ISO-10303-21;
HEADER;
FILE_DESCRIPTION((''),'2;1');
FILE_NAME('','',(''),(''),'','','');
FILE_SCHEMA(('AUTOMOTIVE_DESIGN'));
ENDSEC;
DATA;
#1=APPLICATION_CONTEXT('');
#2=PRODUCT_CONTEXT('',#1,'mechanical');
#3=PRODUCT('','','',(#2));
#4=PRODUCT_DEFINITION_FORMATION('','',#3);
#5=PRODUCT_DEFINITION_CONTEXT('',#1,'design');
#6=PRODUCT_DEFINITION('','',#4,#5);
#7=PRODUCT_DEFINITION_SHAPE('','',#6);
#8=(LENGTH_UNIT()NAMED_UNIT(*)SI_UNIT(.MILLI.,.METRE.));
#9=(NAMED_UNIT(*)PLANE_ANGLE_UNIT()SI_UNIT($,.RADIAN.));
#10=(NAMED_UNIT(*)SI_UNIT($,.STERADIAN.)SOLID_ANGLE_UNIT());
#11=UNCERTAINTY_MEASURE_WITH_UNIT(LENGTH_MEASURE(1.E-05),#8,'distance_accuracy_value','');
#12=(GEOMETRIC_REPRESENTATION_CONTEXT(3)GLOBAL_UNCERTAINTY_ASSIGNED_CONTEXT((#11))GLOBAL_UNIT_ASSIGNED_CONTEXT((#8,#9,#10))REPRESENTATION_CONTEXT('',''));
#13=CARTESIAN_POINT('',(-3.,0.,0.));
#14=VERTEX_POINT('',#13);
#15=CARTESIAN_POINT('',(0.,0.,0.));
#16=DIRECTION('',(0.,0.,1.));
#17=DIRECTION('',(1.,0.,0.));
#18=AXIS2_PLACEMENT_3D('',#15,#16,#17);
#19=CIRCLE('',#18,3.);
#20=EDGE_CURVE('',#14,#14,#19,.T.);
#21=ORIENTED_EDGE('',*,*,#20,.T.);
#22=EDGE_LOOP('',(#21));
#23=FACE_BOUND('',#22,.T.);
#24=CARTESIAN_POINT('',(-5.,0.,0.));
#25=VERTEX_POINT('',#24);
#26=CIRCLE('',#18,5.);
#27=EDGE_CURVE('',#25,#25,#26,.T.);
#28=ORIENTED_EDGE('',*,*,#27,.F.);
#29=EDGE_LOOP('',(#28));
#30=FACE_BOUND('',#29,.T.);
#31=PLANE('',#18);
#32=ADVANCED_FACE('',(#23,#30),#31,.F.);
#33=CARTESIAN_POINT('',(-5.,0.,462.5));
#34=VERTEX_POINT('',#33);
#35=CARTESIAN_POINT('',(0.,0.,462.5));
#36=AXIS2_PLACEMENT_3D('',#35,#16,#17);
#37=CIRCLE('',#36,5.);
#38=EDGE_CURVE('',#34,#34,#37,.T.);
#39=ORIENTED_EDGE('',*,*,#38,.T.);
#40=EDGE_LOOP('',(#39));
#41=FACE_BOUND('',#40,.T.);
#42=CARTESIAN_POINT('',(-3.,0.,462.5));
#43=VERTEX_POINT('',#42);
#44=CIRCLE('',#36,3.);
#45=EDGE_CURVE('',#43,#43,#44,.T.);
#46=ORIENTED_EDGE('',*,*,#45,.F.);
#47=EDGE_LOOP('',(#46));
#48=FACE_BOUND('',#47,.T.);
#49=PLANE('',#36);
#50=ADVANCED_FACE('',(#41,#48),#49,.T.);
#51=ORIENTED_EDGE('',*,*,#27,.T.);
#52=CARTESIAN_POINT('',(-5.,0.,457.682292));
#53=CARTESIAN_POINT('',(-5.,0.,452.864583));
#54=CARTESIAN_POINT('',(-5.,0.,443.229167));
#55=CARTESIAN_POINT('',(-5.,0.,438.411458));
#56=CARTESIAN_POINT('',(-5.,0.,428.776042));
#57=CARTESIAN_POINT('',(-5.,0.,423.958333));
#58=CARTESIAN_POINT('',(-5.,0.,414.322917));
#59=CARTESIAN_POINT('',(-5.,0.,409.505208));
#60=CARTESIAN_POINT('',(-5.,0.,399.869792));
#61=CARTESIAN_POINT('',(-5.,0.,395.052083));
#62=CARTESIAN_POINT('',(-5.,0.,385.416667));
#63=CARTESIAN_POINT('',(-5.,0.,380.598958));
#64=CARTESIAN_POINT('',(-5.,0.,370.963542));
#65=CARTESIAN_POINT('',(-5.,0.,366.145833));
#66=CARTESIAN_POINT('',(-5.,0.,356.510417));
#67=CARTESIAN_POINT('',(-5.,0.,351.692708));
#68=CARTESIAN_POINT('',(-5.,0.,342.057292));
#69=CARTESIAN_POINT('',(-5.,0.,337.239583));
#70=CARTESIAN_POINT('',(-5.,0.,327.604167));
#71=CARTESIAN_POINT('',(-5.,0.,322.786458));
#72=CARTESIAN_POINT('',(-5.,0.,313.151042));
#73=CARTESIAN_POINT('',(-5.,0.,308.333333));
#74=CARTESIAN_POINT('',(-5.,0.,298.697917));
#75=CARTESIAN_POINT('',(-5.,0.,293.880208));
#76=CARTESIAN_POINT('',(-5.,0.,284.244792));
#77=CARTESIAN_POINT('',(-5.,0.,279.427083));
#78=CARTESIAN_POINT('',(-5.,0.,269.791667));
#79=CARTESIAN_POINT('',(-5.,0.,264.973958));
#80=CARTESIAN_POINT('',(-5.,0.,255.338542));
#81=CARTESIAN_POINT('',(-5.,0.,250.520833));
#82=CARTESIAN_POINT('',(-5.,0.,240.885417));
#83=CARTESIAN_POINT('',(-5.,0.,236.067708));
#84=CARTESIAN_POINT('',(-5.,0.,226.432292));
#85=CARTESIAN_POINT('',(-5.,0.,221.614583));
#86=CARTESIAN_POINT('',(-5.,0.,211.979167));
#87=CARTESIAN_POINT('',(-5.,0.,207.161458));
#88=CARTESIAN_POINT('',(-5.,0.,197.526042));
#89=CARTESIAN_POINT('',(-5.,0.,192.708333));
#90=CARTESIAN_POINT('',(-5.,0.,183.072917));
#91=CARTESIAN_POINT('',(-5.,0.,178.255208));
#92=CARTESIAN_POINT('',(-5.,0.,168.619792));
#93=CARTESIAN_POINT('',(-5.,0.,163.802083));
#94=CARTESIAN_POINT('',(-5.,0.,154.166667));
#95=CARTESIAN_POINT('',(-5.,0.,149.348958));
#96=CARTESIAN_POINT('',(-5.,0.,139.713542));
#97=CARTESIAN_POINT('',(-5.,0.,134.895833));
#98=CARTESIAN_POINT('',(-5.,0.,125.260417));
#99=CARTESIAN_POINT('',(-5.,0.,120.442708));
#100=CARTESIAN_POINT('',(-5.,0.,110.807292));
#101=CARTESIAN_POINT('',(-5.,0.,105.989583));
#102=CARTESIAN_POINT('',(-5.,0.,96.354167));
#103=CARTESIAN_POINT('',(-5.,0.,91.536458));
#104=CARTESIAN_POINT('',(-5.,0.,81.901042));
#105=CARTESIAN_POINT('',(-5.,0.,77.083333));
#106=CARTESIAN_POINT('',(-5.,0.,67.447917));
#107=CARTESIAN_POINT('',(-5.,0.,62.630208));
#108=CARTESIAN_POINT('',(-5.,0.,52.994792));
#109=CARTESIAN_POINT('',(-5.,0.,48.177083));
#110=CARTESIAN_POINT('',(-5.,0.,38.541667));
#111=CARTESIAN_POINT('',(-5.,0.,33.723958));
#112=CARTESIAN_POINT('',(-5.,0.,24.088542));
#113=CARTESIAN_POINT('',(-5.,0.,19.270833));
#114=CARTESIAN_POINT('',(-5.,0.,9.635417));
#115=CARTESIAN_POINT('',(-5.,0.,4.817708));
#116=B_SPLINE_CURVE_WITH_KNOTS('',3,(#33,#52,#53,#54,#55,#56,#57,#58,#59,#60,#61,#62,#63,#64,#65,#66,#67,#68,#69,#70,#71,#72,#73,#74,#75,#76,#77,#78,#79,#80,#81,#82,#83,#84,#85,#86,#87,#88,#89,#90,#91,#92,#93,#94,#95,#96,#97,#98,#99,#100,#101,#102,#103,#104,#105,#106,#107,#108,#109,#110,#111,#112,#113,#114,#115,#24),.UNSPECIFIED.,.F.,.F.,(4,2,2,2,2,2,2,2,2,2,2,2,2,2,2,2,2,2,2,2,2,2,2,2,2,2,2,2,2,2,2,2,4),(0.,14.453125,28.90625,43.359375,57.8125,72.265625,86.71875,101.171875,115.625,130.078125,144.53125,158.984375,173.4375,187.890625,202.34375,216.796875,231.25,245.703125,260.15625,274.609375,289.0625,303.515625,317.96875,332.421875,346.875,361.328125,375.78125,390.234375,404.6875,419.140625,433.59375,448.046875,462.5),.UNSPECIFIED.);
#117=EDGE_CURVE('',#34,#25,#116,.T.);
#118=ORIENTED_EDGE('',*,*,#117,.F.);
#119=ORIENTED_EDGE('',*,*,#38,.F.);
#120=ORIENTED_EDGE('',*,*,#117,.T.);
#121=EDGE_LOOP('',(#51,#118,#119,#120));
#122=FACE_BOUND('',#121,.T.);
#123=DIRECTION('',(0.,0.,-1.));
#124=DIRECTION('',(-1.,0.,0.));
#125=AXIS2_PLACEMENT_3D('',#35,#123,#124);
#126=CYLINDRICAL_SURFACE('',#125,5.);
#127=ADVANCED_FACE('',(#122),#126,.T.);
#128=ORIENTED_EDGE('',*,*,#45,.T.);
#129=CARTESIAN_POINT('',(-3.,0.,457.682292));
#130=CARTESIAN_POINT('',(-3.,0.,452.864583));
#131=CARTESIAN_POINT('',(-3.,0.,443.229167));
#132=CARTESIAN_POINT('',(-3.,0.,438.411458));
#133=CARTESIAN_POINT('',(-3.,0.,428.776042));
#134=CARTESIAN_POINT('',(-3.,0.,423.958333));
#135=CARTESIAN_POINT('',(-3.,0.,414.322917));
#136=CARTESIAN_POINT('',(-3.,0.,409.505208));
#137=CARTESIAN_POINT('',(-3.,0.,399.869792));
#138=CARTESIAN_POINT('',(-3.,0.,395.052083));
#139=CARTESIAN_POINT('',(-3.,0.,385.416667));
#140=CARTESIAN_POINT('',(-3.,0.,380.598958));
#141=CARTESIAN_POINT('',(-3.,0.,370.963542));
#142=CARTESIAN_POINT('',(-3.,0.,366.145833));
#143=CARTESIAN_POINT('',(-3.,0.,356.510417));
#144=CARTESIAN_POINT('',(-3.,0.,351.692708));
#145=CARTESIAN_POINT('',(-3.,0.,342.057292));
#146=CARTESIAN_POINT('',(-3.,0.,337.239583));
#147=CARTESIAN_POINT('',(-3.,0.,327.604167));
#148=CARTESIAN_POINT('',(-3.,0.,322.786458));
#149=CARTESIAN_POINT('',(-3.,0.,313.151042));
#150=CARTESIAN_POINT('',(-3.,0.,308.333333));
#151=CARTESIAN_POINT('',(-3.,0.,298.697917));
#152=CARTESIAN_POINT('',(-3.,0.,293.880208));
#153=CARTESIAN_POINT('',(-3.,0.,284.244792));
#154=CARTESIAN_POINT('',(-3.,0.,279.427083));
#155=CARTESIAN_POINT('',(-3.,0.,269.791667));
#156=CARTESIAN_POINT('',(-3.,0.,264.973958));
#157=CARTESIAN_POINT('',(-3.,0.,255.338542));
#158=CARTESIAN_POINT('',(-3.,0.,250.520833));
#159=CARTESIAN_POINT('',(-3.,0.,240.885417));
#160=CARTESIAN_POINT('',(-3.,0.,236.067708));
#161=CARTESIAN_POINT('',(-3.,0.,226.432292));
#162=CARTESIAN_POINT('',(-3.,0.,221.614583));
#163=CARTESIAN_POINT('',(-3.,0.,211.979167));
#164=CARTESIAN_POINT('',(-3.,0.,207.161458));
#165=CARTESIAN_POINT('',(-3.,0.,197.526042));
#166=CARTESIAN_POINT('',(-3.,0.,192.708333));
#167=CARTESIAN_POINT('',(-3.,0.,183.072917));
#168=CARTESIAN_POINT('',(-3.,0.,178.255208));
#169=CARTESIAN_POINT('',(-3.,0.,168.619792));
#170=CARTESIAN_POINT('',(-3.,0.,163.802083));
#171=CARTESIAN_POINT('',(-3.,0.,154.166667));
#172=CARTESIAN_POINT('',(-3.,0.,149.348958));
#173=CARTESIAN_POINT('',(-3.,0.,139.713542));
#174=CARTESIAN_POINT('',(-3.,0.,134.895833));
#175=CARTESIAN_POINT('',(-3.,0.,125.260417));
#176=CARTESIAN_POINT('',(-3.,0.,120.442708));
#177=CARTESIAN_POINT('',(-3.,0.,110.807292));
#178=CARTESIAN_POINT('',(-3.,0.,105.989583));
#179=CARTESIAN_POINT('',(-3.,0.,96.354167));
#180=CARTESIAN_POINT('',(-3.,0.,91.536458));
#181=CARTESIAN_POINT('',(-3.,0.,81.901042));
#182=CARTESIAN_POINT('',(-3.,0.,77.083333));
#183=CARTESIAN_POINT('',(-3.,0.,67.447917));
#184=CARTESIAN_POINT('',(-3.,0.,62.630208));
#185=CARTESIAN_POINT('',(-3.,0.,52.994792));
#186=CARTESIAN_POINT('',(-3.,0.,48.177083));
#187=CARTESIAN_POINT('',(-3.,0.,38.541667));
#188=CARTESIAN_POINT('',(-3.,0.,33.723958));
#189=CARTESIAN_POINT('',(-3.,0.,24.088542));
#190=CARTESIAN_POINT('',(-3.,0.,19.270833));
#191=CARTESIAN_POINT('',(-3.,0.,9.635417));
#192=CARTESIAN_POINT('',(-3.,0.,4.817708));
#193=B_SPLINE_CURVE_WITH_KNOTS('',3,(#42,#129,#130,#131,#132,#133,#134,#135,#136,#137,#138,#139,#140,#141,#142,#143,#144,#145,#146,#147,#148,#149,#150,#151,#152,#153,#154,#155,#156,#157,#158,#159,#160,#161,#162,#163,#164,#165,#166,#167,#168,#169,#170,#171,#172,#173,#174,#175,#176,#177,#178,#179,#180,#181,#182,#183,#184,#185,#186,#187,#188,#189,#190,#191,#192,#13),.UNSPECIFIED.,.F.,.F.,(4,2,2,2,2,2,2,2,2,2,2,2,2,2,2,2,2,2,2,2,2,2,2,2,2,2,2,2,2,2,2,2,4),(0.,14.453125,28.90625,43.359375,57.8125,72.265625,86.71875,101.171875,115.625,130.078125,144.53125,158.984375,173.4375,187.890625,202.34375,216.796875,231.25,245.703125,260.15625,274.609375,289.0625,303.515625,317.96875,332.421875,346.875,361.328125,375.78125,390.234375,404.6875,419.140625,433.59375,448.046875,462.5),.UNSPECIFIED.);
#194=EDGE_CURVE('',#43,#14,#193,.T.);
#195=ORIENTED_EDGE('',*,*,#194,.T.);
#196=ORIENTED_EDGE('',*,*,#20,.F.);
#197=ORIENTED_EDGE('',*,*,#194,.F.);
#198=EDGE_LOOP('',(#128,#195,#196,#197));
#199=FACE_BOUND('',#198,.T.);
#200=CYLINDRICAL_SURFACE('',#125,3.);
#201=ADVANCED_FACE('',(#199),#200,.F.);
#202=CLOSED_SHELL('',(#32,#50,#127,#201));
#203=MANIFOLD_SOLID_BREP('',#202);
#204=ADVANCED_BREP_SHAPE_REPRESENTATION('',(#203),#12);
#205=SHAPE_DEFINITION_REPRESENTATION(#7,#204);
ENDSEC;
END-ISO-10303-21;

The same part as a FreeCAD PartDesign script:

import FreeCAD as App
import Part
import Sketcher

V = App.Vector
Q = App.Units.Quantity

doc = App.newDocument("Part")
body = doc.addObject("PartDesign::Body", "Body")

sketch1 = body.newObject("Sketcher::SketchObject", "Sketch")
sketch1.AttachmentSupport = (doc.getObject("XY_Plane"), [""])
sketch1.MapMode = "FlatFace"
sketch1.addGeometry([
    Part.Circle(V(0, 0, 0), V(0, 0, 1), 5),
    Part.Circle(V(0, 0, 0), V(0, 0, 1), 3),
], False)
sketch1.addConstraint([
    Sketcher.Constraint("Coincident", 0, 3, -1, 1),
    Sketcher.Constraint("Coincident", 1, 3, -1, 1),
    Sketcher.Constraint("Diameter", 0, Q("10 mm")),
    Sketcher.Constraint("Diameter", 1, Q("6 mm")),
])
pad1 = body.newObject("PartDesign::Pad", "Pad")
pad1.Profile = sketch1
pad1.Length = 462.5

doc.recompute()
